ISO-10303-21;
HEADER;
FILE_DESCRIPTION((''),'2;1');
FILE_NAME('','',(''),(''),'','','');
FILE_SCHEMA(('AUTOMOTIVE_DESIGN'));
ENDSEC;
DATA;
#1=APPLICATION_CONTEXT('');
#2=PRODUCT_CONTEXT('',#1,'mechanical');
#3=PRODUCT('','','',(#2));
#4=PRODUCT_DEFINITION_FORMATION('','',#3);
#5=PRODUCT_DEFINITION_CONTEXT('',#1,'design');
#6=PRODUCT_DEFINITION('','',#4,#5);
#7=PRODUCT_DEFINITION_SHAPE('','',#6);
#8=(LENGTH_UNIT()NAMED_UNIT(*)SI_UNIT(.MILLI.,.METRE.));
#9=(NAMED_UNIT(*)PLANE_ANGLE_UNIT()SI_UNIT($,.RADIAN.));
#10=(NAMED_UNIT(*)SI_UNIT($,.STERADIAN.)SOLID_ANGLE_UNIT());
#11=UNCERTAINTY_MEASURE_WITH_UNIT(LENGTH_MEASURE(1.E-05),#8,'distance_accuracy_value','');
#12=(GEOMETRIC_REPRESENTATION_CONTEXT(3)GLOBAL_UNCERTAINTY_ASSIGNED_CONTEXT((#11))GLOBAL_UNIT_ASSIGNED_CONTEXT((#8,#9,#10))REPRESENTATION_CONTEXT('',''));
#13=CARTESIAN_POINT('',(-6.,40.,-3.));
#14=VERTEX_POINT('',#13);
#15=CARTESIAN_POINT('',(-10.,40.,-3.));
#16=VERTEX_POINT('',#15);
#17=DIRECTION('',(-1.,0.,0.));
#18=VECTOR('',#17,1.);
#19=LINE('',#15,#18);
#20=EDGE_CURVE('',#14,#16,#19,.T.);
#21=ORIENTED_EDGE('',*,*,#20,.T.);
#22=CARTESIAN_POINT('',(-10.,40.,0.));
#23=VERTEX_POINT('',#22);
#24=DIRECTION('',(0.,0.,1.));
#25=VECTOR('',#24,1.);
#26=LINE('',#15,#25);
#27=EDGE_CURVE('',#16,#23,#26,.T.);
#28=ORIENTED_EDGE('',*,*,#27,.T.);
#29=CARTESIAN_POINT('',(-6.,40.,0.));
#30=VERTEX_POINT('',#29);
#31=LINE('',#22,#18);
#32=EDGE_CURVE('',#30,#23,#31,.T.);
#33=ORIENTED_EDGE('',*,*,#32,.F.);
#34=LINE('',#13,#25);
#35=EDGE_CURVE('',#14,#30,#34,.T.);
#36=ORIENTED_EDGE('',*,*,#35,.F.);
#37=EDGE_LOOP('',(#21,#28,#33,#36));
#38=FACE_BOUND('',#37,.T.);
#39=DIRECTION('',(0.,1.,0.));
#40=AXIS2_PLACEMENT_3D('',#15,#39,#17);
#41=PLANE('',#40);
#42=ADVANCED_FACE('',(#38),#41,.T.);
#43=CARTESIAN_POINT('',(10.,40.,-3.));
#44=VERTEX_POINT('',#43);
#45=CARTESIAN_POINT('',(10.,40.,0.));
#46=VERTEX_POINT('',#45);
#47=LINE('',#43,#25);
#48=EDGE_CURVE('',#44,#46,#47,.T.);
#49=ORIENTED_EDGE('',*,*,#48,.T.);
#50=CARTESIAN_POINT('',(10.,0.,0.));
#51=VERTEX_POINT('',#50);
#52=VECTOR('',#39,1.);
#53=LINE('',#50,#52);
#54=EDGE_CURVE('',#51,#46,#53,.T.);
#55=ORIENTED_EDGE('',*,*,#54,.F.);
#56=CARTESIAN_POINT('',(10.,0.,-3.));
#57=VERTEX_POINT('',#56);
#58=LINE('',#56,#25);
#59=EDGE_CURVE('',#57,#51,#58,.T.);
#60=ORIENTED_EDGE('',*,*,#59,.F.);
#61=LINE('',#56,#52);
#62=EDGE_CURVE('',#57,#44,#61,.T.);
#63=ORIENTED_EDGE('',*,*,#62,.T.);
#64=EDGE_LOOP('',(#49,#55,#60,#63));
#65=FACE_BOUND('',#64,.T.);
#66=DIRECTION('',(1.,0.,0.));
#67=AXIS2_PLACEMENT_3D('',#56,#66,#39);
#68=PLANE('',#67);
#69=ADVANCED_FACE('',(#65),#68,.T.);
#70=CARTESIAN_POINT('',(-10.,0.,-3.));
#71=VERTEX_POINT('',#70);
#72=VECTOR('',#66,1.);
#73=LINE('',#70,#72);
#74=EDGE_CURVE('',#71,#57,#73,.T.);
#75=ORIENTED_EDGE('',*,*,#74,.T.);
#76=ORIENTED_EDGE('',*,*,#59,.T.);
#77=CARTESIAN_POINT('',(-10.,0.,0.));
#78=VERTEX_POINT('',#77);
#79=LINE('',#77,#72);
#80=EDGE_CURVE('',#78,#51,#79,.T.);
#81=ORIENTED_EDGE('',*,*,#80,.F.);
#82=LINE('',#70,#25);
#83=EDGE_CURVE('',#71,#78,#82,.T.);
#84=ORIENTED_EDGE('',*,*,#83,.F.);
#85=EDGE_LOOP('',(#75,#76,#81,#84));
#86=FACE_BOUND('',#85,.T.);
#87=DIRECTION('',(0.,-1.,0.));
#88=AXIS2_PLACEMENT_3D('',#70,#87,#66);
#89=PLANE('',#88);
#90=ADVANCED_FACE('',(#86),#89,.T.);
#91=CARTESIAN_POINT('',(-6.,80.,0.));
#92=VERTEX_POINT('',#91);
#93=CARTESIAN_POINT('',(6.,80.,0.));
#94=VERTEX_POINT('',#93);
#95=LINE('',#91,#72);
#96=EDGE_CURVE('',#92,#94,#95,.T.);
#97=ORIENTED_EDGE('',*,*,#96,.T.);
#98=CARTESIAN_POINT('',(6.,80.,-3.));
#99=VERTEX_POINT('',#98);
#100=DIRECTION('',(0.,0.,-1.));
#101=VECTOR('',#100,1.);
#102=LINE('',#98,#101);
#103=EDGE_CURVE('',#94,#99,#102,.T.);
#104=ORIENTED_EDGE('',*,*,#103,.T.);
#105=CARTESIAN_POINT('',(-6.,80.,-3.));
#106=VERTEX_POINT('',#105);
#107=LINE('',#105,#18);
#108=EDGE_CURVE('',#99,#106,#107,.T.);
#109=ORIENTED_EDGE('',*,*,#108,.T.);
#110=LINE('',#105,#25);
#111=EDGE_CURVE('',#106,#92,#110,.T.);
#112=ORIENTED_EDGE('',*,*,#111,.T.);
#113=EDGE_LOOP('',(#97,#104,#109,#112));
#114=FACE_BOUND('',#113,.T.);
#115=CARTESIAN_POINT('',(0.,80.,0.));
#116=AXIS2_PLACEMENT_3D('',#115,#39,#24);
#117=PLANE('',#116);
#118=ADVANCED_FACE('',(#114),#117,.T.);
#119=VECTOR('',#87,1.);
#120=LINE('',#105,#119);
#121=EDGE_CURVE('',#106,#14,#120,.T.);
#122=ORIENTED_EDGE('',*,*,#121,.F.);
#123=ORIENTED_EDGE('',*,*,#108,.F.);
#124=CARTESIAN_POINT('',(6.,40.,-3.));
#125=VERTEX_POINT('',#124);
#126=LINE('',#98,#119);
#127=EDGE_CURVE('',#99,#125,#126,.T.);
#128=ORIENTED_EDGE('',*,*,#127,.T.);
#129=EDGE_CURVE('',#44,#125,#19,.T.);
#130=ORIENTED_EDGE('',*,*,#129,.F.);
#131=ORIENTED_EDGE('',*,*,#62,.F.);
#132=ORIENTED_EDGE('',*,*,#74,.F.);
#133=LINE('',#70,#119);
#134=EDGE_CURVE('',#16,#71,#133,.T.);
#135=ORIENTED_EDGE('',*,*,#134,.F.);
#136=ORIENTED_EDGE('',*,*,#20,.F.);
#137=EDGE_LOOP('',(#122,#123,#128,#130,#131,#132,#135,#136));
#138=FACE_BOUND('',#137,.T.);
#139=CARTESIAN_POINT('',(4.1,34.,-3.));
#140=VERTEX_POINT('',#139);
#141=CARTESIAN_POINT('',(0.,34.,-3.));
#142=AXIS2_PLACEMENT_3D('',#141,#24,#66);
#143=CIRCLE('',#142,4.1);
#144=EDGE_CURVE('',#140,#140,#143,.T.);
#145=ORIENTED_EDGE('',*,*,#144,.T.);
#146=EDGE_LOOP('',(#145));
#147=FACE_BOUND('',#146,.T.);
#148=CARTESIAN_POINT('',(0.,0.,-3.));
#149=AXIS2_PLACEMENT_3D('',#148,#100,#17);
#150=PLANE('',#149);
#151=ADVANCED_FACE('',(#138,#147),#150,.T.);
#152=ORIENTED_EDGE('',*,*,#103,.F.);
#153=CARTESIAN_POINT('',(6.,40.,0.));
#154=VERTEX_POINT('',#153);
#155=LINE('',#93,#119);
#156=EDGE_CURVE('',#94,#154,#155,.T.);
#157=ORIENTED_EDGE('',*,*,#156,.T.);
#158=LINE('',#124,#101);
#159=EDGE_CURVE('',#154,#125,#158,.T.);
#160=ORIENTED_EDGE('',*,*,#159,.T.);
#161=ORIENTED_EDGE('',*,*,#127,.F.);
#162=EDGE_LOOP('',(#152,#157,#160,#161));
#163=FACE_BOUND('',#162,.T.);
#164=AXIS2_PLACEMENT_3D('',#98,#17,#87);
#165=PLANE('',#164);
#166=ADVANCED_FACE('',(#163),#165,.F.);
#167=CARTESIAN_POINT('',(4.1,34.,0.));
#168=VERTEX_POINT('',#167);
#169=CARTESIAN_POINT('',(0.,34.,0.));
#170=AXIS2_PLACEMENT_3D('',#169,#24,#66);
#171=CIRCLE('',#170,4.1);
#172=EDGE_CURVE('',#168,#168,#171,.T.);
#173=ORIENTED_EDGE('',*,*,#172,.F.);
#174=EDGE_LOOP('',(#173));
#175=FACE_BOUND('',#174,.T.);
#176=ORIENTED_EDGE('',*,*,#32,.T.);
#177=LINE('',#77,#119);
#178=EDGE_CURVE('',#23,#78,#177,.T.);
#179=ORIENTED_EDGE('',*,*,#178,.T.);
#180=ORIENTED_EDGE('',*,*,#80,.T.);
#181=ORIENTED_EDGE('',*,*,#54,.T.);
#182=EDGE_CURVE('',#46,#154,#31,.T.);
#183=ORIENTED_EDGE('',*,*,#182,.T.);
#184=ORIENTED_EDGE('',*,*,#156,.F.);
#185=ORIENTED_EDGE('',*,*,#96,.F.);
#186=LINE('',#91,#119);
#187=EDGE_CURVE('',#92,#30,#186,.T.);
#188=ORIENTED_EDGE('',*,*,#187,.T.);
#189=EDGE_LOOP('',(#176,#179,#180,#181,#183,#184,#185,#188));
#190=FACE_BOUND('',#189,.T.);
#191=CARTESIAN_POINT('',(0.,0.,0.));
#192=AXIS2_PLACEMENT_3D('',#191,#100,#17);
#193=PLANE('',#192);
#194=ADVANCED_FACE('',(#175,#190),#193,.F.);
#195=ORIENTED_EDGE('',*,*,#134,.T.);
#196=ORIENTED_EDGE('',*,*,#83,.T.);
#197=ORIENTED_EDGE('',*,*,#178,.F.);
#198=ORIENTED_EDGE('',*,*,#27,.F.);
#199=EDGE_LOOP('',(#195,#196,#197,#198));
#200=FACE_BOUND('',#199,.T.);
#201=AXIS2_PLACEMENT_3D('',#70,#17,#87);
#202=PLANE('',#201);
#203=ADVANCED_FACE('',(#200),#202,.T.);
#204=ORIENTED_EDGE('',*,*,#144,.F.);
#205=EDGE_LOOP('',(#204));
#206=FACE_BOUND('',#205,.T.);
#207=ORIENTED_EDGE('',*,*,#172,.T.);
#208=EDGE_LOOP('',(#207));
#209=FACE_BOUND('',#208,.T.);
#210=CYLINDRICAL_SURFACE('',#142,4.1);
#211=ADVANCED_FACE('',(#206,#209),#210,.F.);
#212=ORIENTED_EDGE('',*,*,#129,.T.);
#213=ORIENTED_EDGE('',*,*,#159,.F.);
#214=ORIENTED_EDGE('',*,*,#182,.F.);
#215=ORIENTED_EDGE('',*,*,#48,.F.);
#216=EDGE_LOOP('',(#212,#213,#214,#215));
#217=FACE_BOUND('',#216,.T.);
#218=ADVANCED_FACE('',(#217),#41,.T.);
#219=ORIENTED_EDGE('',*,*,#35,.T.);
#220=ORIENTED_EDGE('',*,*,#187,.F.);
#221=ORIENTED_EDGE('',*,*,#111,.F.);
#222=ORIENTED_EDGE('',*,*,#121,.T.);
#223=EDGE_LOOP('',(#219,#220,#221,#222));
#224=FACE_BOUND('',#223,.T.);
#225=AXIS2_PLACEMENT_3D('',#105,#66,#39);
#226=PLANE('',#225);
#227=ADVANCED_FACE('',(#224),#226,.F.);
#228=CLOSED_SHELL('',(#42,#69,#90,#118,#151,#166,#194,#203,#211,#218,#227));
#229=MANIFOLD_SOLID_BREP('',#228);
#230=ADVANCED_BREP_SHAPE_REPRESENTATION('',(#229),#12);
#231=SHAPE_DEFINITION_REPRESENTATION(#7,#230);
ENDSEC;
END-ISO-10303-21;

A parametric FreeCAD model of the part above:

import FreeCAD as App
import Part
import Sketcher

V = App.Vector
Q = App.Units.Quantity


def add_polygon(sketch, points):
    """Adds a closed chain of lines whose ends are joined by coincident constraints."""
    first, n = sketch.GeometryCount, len(points)
    for a, b in zip(points, points[1:] + points[:1]):
        sketch.addGeometry(Part.LineSegment(App.Vector(*a, 0), App.Vector(*b, 0)), False)
    for i in range(n):
        sketch.addConstraint(Sketcher.Constraint("Coincident", first + i, 2, first + (i + 1) % n, 1))

doc = App.newDocument("Part")
body = doc.addObject("PartDesign::Body", "Body")

sketch1 = body.newObject("Sketcher::SketchObject", "Sketch")
sketch1.AttachmentSupport = (doc.getObject("XY_Plane"), [""])
sketch1.MapMode = "FlatFace"
add_polygon(sketch1, [(-10, 40), (-10, 0), (10, 0), (10, 40)])
sketch1.addConstraint([
    Sketcher.Constraint("Vertical", 0),
    Sketcher.Constraint("Horizontal", 1),
    Sketcher.Constraint("Vertical", 2),
    Sketcher.Constraint("Horizontal", 3),
    Sketcher.Constraint("Symmetric", 0, 2, 1, 2, -1, 1),
    Sketcher.Constraint("DistanceX", 1, 1, 1, 2, Q("20 mm")),
    Sketcher.Constraint("DistanceY", 0, 2, 0, 1, Q("40 mm")),
])
pad1 = body.newObject("PartDesign::Pad", "Pad")
pad1.Profile = sketch1
pad1.Length = 3
pad1.Reversed = True

sketch2 = body.newObject("Sketcher::SketchObject", "Sketch001")
sketch2.AttachmentSupport = (doc.getObject("XY_Plane"), [""])
sketch2.MapMode = "FlatFace"
sketch2.addGeometry(Part.Circle(V(0, 34, 0), V(0, 0, 1), 4.1), False)
sketch2.addConstraint([
    Sketcher.Constraint("PointOnObject", 0, 3, -2),
    Sketcher.Constraint("Diameter", 0, Q("8.2 mm")),
    Sketcher.Constraint("DistanceY", -1, 1, 0, 3, Q("34 mm")),
])
pocket1 = body.newObject("PartDesign::Pocket", "Pocket")
pocket1.Profile = sketch2
pocket1.Length = 3

sketch3 = body.newObject("Sketcher::SketchObject", "Sketch002")
sketch3.AttachmentSupport = (doc.getObject("XZ_Plane"), [""])
sketch3.MapMode = "FlatFace"
sketch3.AttachmentOffset = App.Placement(V(0, 0, -40), App.Rotation())
add_polygon(sketch3, [(-6, -3), (-6, 0), (6, 0), (6, -3)])
sketch3.addConstraint([
    Sketcher.Constraint("Vertical", 0),
    Sketcher.Constraint("Horizontal", 1),
    Sketcher.Constraint("Vertical", 2),
    Sketcher.Constraint("Horizontal", 3),
    Sketcher.Constraint("Symmetric", 0, 2, 1, 2, -1, 1),
    Sketcher.Constraint("DistanceX", 1, 1, 1, 2, Q("12 mm")),
    Sketcher.Constraint("DistanceY", 0, 1, 0, 2, Q("3 mm")),
])
pad2 = body.newObject("PartDesign::Pad", "Pad001")
pad2.Profile = sketch3
pad2.Length = 40
pad2.Reversed = True

doc.recompute()
